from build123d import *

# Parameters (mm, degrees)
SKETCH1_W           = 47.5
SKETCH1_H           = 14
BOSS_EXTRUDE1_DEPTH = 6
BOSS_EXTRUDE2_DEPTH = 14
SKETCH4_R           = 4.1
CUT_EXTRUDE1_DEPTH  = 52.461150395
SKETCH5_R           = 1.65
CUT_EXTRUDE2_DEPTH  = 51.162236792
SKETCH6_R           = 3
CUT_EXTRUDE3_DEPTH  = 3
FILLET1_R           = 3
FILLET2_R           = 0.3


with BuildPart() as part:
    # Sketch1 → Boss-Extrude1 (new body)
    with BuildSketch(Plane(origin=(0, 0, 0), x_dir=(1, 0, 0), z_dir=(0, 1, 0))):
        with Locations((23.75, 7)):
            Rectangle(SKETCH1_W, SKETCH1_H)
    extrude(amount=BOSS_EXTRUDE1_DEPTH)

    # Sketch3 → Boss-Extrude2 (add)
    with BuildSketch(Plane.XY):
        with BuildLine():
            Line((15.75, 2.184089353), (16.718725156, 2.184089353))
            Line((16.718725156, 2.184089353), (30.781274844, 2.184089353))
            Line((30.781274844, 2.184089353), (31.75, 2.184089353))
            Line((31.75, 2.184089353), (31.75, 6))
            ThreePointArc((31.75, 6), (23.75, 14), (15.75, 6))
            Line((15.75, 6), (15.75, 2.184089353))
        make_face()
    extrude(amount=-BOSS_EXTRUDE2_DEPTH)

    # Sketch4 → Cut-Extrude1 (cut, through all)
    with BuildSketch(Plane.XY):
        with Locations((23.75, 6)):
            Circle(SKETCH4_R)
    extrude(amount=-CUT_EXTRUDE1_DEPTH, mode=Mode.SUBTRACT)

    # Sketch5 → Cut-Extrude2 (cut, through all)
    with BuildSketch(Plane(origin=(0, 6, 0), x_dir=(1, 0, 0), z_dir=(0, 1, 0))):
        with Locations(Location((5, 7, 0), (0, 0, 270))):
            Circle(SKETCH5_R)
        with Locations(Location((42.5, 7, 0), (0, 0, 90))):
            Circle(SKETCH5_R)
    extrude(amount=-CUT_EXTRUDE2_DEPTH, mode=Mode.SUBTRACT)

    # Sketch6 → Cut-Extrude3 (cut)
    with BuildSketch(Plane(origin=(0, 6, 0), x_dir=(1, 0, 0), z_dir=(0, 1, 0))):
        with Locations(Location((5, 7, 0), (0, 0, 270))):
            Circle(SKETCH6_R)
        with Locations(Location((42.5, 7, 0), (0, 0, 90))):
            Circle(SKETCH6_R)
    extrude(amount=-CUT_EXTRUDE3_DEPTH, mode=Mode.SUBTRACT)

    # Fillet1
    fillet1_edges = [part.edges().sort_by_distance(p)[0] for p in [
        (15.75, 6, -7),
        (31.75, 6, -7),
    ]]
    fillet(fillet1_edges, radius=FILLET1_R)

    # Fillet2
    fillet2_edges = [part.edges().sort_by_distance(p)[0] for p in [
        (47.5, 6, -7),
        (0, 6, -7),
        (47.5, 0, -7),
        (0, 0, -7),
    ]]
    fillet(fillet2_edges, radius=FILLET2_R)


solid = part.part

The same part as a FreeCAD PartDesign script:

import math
import FreeCAD as App
import Part
import Sketcher

V = App.Vector
Q = App.Units.Quantity


def edges_at(feature, points):
    """Names of the edges that pass closest to the given points."""
    edges = feature.Shape.Edges
    near = lambda p: min(range(len(edges)), key=lambda i: edges[i].distToShape(Part.Vertex(*p))[0])
    return sorted({f"Edge{near(p) + 1}" for p in points})


def add_polygon(sketch, points):
    """Adds a closed chain of lines whose ends are joined by coincident constraints."""
    first, n = sketch.GeometryCount, len(points)
    for a, b in zip(points, points[1:] + points[:1]):
        sketch.addGeometry(Part.LineSegment(App.Vector(*a, 0), App.Vector(*b, 0)), False)
    for i in range(n):
        sketch.addConstraint(Sketcher.Constraint("Coincident", first + i, 2, first + (i + 1) % n, 1))

doc = App.newDocument("Part")
params = doc.addObject("Spreadsheet::Sheet", "Params")
for row, (alias, value) in enumerate([
    ("sketch1_height", "14 mm"),
    ("sketch1_width", "47.5 mm"),
    ("pad1_length", "6 mm"),
    ("sketch2_radius", "8 mm"),
    ("pad2_length", "14 mm"),
    ("sketch3_diameter", "8.2 mm"),
    ("sketch4_diameter", "3.3 mm"),
    ("sketch5_diameter", "6 mm"),
    ("pocket3_length", "3 mm"),
    ("fillet_radius", "3 mm"),
    ("fillet2_radius", "0.3 mm"),
], start=1):
    params.set(f"A{row}", alias)
    params.set(f"B{row}", "=" + value)
    params.setAlias(f"B{row}", alias)

body = doc.addObject("PartDesign::Body", "Body")

sketch1 = body.newObject("Sketcher::SketchObject", "Sketch")
sketch1.AttachmentSupport = (doc.getObject("XZ_Plane"), [""])
sketch1.MapMode = "FlatFace"
add_polygon(sketch1, [(0, -14), (0, 0), (48, 0), (48, -14)])
sketch1.addConstraint([
    Sketcher.Constraint("Vertical", 0),
    Sketcher.Constraint("Horizontal", 1),
    Sketcher.Constraint("Vertical", 2),
    Sketcher.Constraint("Horizontal", 3),
    Sketcher.Constraint("Coincident", 0, 2, -1, 1),
    Sketcher.Constraint("DistanceY", 0, 1, 0, 2, Q("14 mm")),
    Sketcher.Constraint("DistanceX", 1, 1, 1, 2, Q("47.5 mm")),
])
sketch1.setExpression("Constraints[9]", "Params.sketch1_height")
sketch1.setExpression("Constraints[10]", "Params.sketch1_width")
pad1 = body.newObject("PartDesign::Pad", "Pad")
pad1.Profile = sketch1
pad1.setExpression("Length", "Params.pad1_length")
pad1.Reversed = True

sketch2 = body.newObject("Sketcher::SketchObject", "Sketch001")
sketch2.AttachmentSupport = (doc.getObject("XY_Plane"), [""])
sketch2.MapMode = "FlatFace"
sketch2.addGeometry([
    Part.LineSegment(V(15.8, 2.2, 0), V(31.8, 2.2, 0)),
    Part.LineSegment(V(31.8, 2.2, 0), V(31.8, 6, 0)),
    Part.ArcOfCircle(Part.Circle(V(23.8, 6, 0), V(0, 0, 1), 8), math.radians(0), math.radians(180)),
    Part.LineSegment(V(15.8, 6, 0), V(15.8, 2.2, 0)),
], False)
sketch2.addConstraint([
    Sketcher.Constraint("Coincident", 0, 2, 1, 1),
    Sketcher.Constraint("Tangent", 1, 2, 2, 1),
    Sketcher.Constraint("Tangent", 2, 2, 3, 1),
    Sketcher.Constraint("Coincident", 3, 2, 0, 1),
    Sketcher.Constraint("Horizontal", 0),
    Sketcher.Constraint("Vertical", 1),
    Sketcher.Constraint("Vertical", 3),
    Sketcher.Constraint("Radius", 2, Q("8 mm")),
    Sketcher.Constraint("DistanceY", -1, 1, 2, 3, Q("6 mm")),
    Sketcher.Constraint("DistanceX", -1, 1, 2, 3, Q("23.75 mm")),
    Sketcher.Constraint("DistanceY", 1, 1, 1, 2, Q("3.815911 mm")),
])
sketch2.setExpression("Constraints[7]", "Params.sketch2_radius")
pad2 = body.newObject("PartDesign::Pad", "Pad001")
pad2.Profile = sketch2
pad2.setExpression("Length", "Params.pad2_length")
pad2.Reversed = True

sketch3 = body.newObject("Sketcher::SketchObject", "Sketch002")
sketch3.AttachmentSupport = (doc.getObject("XY_Plane"), [""])
sketch3.MapMode = "FlatFace"
sketch3.addGeometry(Part.Circle(V(23.8, 6, 0), V(0, 0, 1), 4.1), False)
sketch3.addConstraint([
    Sketcher.Constraint("Diameter", 0, Q("8.2 mm")),
    Sketcher.Constraint("DistanceY", -1, 1, 0, 3, Q("6 mm")),
    Sketcher.Constraint("DistanceX", -1, 1, 0, 3, Q("23.75 mm")),
])
sketch3.setExpression("Constraints[0]", "Params.sketch3_diameter")
pocket1 = body.newObject("PartDesign::Pocket", "Pocket")
pocket1.Profile = sketch3
pocket1.Type = "ThroughAll"

sketch4 = body.newObject("Sketcher::SketchObject", "Sketch003")
sketch4.AttachmentSupport = (doc.getObject("XZ_Plane"), [""])
sketch4.MapMode = "FlatFace"
sketch4.AttachmentOffset = App.Placement(V(0, 0, -6), App.Rotation())
sketch4.addGeometry([
    Part.Circle(V(5, -7, 0), V(0, 0, 1), 1.6),
    Part.Circle(V(42.5, -7, 0), V(0, 0, 1), 1.6),
], False)
sketch4.addConstraint([
    Sketcher.Constraint("Equal", 0, 1),
    Sketcher.Constraint("Horizontal", 0, 3, 1, 3),
    Sketcher.Constraint("Diameter", 0, Q("3.3 mm")),
    Sketcher.Constraint("DistanceX", -1, 1, 0, 3, Q("5 mm")),
    Sketcher.Constraint("DistanceY", 0, 3, -1, 1, Q("7 mm")),
    Sketcher.Constraint("DistanceX", -1, 1, 1, 3, Q("42.5 mm")),
])
sketch4.setExpression("Constraints[2]", "Params.sketch4_diameter")
pocket2 = body.newObject("PartDesign::Pocket", "Pocket001")
pocket2.Profile = sketch4
pocket2.Type = "ThroughAll"
pocket2.Reversed = True

sketch5 = body.newObject("Sketcher::SketchObject", "Sketch004")
sketch5.AttachmentSupport = (doc.getObject("XZ_Plane"), [""])
sketch5.MapMode = "FlatFace"
sketch5.AttachmentOffset = App.Placement(V(0, 0, -6), App.Rotation())
sketch5.addGeometry([
    Part.Circle(V(5, -7, 0), V(0, 0, 1), 3),
    Part.Circle(V(42.5, -7, 0), V(0, 0, 1), 3),
], False)
sketch5.addConstraint([
    Sketcher.Constraint("Equal", 0, 1),
    Sketcher.Constraint("Horizontal", 0, 3, 1, 3),
    Sketcher.Constraint("Diameter", 0, Q("6 mm")),
    Sketcher.Constraint("DistanceX", -1, 1, 0, 3, Q("5 mm")),
    Sketcher.Constraint("DistanceY", 0, 3, -1, 1, Q("7 mm")),
    Sketcher.Constraint("DistanceX", -1, 1, 1, 3, Q("42.5 mm")),
])
sketch5.setExpression("Constraints[2]", "Params.sketch5_diameter")
pocket3 = body.newObject("PartDesign::Pocket", "Pocket002")
pocket3.Profile = sketch5
pocket3.setExpression("Length", "Params.pocket3_length")
pocket3.Reversed = True
doc.recompute()

fillet = body.newObject("PartDesign::Fillet", "Fillet")
fillet.Base = (pocket3, edges_at(pocket3, [(15.75, 6, -7), (31.75, 6, -7)]))
fillet.setExpression("Radius", "Params.fillet_radius")
doc.recompute()

fillet2 = body.newObject("PartDesign::Fillet", "Fillet001")
fillet2.Base = (fillet, edges_at(fillet, [
    (47.5, 6, -7),
    (0, 6, -7),
    (47.5, 0, -7),
    (0, 0, -7),
]))
fillet2.setExpression("Radius", "Params.fillet2_radius")

doc.recompute()
